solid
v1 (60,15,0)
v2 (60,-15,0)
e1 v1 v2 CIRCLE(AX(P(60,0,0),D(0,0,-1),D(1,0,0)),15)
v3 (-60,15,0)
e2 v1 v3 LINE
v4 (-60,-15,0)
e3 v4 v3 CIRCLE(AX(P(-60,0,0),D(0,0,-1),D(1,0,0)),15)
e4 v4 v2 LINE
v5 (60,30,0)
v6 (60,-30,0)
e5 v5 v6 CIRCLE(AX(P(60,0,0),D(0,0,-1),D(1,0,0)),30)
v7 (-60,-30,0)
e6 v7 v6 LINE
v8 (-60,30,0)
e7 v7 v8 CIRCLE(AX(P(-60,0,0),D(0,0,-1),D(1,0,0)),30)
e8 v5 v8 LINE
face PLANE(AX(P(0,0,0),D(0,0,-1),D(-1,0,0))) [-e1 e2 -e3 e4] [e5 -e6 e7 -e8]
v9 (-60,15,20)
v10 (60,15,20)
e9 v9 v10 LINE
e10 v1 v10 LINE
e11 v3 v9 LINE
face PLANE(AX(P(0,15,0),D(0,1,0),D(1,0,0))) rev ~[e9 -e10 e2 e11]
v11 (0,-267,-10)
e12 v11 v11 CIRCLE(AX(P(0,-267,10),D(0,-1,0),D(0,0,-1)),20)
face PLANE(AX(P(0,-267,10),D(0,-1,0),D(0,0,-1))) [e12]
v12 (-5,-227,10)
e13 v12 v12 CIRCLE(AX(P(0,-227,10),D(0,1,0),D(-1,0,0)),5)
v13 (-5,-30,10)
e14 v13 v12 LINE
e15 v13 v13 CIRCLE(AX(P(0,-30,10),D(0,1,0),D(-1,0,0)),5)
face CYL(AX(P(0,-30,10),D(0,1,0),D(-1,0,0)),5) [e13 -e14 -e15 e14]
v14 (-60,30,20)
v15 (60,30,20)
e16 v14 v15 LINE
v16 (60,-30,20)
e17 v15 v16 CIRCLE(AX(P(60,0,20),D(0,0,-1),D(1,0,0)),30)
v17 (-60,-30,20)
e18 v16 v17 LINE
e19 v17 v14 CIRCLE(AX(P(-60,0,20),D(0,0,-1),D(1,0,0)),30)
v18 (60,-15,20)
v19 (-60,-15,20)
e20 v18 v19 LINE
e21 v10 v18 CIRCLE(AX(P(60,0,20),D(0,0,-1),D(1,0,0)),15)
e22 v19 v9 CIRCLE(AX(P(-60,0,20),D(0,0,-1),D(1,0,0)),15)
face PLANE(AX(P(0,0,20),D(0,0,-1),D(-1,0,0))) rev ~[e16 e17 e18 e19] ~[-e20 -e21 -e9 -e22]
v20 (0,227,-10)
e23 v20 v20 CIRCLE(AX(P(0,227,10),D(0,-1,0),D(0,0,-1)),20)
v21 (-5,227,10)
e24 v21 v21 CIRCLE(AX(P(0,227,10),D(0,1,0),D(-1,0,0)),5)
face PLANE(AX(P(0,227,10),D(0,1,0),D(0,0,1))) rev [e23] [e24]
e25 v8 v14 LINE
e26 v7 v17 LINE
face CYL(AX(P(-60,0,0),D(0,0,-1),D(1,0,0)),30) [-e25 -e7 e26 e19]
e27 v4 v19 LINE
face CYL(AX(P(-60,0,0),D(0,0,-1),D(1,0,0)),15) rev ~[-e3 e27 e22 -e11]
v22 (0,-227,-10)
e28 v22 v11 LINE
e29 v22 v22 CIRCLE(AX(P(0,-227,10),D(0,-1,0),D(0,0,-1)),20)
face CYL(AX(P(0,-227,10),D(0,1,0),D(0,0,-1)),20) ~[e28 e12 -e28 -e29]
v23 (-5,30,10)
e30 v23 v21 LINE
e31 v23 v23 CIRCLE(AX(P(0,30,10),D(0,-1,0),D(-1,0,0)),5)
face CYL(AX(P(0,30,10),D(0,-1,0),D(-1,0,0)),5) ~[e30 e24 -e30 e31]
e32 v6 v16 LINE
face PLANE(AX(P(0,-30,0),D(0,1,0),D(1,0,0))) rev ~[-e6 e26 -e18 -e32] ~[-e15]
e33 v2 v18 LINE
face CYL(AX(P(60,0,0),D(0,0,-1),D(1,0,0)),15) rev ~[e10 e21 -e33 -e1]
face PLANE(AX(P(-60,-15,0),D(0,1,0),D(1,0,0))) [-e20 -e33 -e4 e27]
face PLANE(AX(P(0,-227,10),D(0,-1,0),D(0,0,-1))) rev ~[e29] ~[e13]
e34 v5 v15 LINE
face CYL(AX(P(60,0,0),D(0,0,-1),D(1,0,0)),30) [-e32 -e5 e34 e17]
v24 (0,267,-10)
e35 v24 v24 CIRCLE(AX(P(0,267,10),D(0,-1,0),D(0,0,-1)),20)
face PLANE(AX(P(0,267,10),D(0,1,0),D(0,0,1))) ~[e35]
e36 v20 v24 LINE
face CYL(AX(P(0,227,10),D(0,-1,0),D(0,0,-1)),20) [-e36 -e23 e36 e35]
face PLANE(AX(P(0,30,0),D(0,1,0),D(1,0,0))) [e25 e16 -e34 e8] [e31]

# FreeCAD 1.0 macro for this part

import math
import FreeCAD as App
import Part
import Sketcher
Q = App.Units.Quantity

doc = App.newDocument("Part")
params = doc.addObject("Spreadsheet::Sheet", "Params")
for row, (alias, value) in enumerate([
    ("sketch1_radius", "30 mm"),
    ("sketch1_radius2", "15 mm"),
    ("sketch1_width", "120 mm"),
    ("pad1_length", "20 mm"),
    ("sketch2_diameter", "10 mm"),
    ("pad2_length", "197 mm"),
    ("sketch3_diameter", "40 mm"),
    ("pad3_length", "40 mm"),
], start=1):
    params.set(f"A{row}", alias)
    params.set(f"B{row}", "=" + value)
    params.setAlias(f"B{row}", alias)

body = doc.addObject("PartDesign::Body", "Body")

# Sketch on XY plane
sketch1 = body.newObject("Sketcher::SketchObject", "Sketch")
sketch1.AttachmentSupport = (doc.getObject("XY_Plane"), [""])
sketch1.MapMode = "FlatFace"
sketch1.addGeometry([
    Part.ArcOfCircle(Part.Circle(App.Vector(60, 0, 0), App.Vector(0, 0, 1), 30), math.radians(-90), math.radians(90)),  # 0
    Part.LineSegment(App.Vector(60, 30, 0), App.Vector(-60, 30, 0)),  # 1
    Part.ArcOfCircle(Part.Circle(App.Vector(-60, 0, 0), App.Vector(0, 0, 1), 30), math.radians(90), math.radians(270)),  # 2
    Part.LineSegment(App.Vector(-60, -30, 0), App.Vector(60, -30, 0)),  # 3
    Part.LineSegment(App.Vector(-60, 15, 0), App.Vector(60, 15, 0)),  # 4
    Part.ArcOfCircle(Part.Circle(App.Vector(60, 0, 0), App.Vector(0, 0, 1), 15), math.radians(-90), math.radians(90)),  # 5
    Part.LineSegment(App.Vector(60, -15, 0), App.Vector(-60, -15, 0)),  # 6
    Part.ArcOfCircle(Part.Circle(App.Vector(-60, 0, 0), App.Vector(0, 0, 1), 15), math.radians(90), math.radians(270)),  # 7
], False)
sketch1.addConstraint([
    Sketcher.Constraint("Tangent", 0, 2, 1, 1),
    Sketcher.Constraint("Tangent", 1, 2, 2, 1),
    Sketcher.Constraint("Tangent", 2, 2, 3, 1),
    Sketcher.Constraint("Tangent", 3, 2, 0, 1),
    Sketcher.Constraint("Tangent", 4, 2, 5, 2),
    Sketcher.Constraint("Tangent", 5, 1, 6, 1),
    Sketcher.Constraint("Tangent", 6, 2, 7, 2),
    Sketcher.Constraint("Tangent", 7, 1, 4, 1),
    Sketcher.Constraint("Horizontal", 1),
    Sketcher.Constraint("Horizontal", 3),
    Sketcher.Constraint("Horizontal", 4),
    Sketcher.Constraint("Horizontal", 6),
    Sketcher.Constraint("Coincident", 5, 3, 0, 3),
    Sketcher.Constraint("Symmetric", 0, 3, 2, 3, -1, 1),
    Sketcher.Constraint("Vertical", 7, 3, 1, 2),
    Sketcher.Constraint("Radius", 0, Q("30 mm")),
    Sketcher.Constraint("Radius", 5, Q("15 mm")),
    Sketcher.Constraint("DistanceX", 1, 2, 1, 1, Q("120 mm")),
])
sketch1.setExpression("Constraints[15]", "Params.sketch1_radius")
sketch1.setExpression("Constraints[16]", "Params.sketch1_radius2")
sketch1.setExpression("Constraints[17]", "Params.sketch1_width")
pad1 = body.newObject("PartDesign::Pad", "Pad")
pad1.Profile = sketch1
pad1.setExpression("Length", "Params.pad1_length")

# Sketch on XZ plane
sketch2 = body.newObject("Sketcher::SketchObject", "Sketch001")
sketch2.AttachmentSupport = (doc.getObject("XZ_Plane"), [""])
sketch2.MapMode = "FlatFace"
sketch2.AttachmentOffset = App.Placement(App.Vector(0, 0, -30), App.Rotation())
sketch2.addGeometry(Part.Circle(App.Vector(0, 10, 0), App.Vector(0, 0, 1), 5), False)
sketch2.addConstraint([
    Sketcher.Constraint("PointOnObject", 0, 3, -2),
    Sketcher.Constraint("Diameter", 0, Q("10 mm")),
    Sketcher.Constraint("DistanceY", -1, 1, 0, 3, Q("10 mm")),
])
sketch2.setExpression("Constraints[1]", "Params.sketch2_diameter")
pad2 = body.newObject("PartDesign::Pad", "Pad001")
pad2.Profile = sketch2
pad2.setExpression("Length", "Params.pad2_length")
pad2.Reversed = True
doc.recompute()

mirrored = body.newObject("PartDesign::Mirrored", "Mirrored")
mirrored.Originals = [pad2]
mirrored.MirrorPlane = (doc.getObject("XZ_Plane"), [""])
body.Tip = mirrored

# Sketch on XZ plane
sketch3 = body.newObject("Sketcher::SketchObject", "Sketch002")
sketch3.AttachmentSupport = (doc.getObject("XZ_Plane"), [""])
sketch3.MapMode = "FlatFace"
sketch3.AttachmentOffset = App.Placement(App.Vector(0, 0, 227), App.Rotation())
sketch3.addGeometry(Part.Circle(App.Vector(0, 10, 0), App.Vector(0, 0, 1), 20), False)
sketch3.addConstraint([
    Sketcher.Constraint("PointOnObject", 0, 3, -2),
    Sketcher.Constraint("Diameter", 0, Q("40 mm")),
    Sketcher.Constraint("DistanceY", -1, 1, 0, 3, Q("10 mm")),
])
sketch3.setExpression("Constraints[1]", "Params.sketch3_diameter")
pad3 = body.newObject("PartDesign::Pad", "Pad002")
pad3.Profile = sketch3
pad3.setExpression("Length", "Params.pad3_length")
doc.recompute()

mirrored2 = body.newObject("PartDesign::Mirrored", "Mirrored001")
mirrored2.Originals = [pad3]
mirrored2.MirrorPlane = (doc.getObject("XZ_Plane"), [""])
body.Tip = mirrored2

doc.recompute()
